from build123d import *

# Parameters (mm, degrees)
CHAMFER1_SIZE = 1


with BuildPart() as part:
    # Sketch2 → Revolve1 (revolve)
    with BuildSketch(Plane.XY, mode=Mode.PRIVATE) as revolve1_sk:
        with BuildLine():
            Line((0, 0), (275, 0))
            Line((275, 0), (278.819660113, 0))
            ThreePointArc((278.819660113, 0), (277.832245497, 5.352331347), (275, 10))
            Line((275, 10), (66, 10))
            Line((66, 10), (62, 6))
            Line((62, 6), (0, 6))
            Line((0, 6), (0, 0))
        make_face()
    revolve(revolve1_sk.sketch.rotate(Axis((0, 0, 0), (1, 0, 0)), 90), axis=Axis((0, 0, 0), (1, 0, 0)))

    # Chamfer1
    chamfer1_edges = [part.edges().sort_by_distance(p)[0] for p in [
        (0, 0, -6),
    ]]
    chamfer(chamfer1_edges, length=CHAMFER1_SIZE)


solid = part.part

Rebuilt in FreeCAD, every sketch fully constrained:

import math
import FreeCAD as App
import Part
import Sketcher

V = App.Vector
Q = App.Units.Quantity


def edges_at(feature, points):
    """Names of the edges that pass closest to the given points."""
    edges = feature.Shape.Edges
    near = lambda p: min(range(len(edges)), key=lambda i: edges[i].distToShape(Part.Vertex(*p))[0])
    return sorted({f"Edge{near(p) + 1}" for p in points})

doc = App.newDocument("Part")
params = doc.addObject("Spreadsheet::Sheet", "Params")
for row, (alias, value) in enumerate([
    ("sketch1_radius", "15 mm"),
    ("sketch1_width", "209 mm"),
    ("sketch1_width2", "62 mm"),
    ("sketch1_height", "6 mm"),
    ("revolution_angle", "360 deg"),
    ("chamfer_size", "1 mm"),
], start=1):
    params.set(f"A{row}", alias)
    params.set(f"B{row}", "=" + value)
    params.setAlias(f"B{row}", alias)

body = doc.addObject("PartDesign::Body", "Body")

# Sketch on XY plane
sketch1 = body.newObject("Sketcher::SketchObject", "Sketch")
sketch1.AttachmentSupport = (doc.getObject("XY_Plane"), [""])
sketch1.MapMode = "FlatFace"
sketch1.addGeometry(Part.LineSegment(V(0, 0, 0), V(279, 0, 0)), False)
sketch1.addGeometry(Part.ArcOfCircle(Part.Circle(V(264, 0, 0), V(0, 0, 1), 15), math.radians(0), math.radians(42)), False)
sketch1.addGeometry(Part.LineSegment(V(275, 10, 0), V(66, 10, 0)), False)
sketch1.addGeometry(Part.LineSegment(V(66, 10, 0), V(62, 6, 0)), False)
sketch1.addGeometry(Part.LineSegment(V(62, 6, 0), V(0, 6, 0)), False)
sketch1.addGeometry(Part.LineSegment(V(0, 6, 0), V(0, 0, 0)), False)
sketch1.addConstraint(Sketcher.Constraint("Coincident", 0, 2, 1, 1))
sketch1.addConstraint(Sketcher.Constraint("Coincident", 1, 2, 2, 1))
sketch1.addConstraint(Sketcher.Constraint("Coincident", 2, 2, 3, 1))
sketch1.addConstraint(Sketcher.Constraint("Coincident", 3, 2, 4, 1))
sketch1.addConstraint(Sketcher.Constraint("Coincident", 4, 2, 5, 1))
sketch1.addConstraint(Sketcher.Constraint("Coincident", 5, 2, 0, 1))
sketch1.addConstraint(Sketcher.Constraint("Horizontal", 0))
sketch1.addConstraint(Sketcher.Constraint("Horizontal", 2))
sketch1.addConstraint(Sketcher.Constraint("Horizontal", 4))
sketch1.addConstraint(Sketcher.Constraint("Vertical", 5))
sketch1.addConstraint(Sketcher.Constraint("Coincident", 5, 2, -1, 1))
sketch1.addConstraint(Sketcher.Constraint("PointOnObject", 1, 3, -1))
sketch1.addConstraint(Sketcher.Constraint("Radius", 1, 15.0))
sketch1.addConstraint(Sketcher.Constraint("DistanceX", 2, 2, 2, 1, 209.0))
sketch1.addConstraint(Sketcher.Constraint("DistanceX", 4, 2, 4, 1, 62.0))
sketch1.addConstraint(Sketcher.Constraint("DistanceY", 5, 2, 5, 1, 6.0))
sketch1.addConstraint(Sketcher.Constraint("Angle", 3, Q("-135 deg")))
sketch1.addConstraint(Sketcher.Constraint("DistanceX", -1, 1, 1, 2, 275.0))
sketch1.setExpression("Constraints[12]", "Params.sketch1_radius")
sketch1.setExpression("Constraints[13]", "Params.sketch1_width")
sketch1.setExpression("Constraints[14]", "Params.sketch1_width2")
sketch1.setExpression("Constraints[15]", "Params.sketch1_height")
revolution = body.newObject("PartDesign::Revolution", "Revolution")
revolution.Profile = sketch1
revolution.ReferenceAxis = (sketch1, ["H_Axis"])
revolution.setExpression("Angle", "Params.revolution_angle")
doc.recompute()

chamfer = body.newObject("PartDesign::Chamfer", "Chamfer")
chamfer.Base = (revolution, edges_at(revolution, [(0, 0, -6)]))
chamfer.setExpression("Size", "Params.chamfer_size")

doc.recompute()
